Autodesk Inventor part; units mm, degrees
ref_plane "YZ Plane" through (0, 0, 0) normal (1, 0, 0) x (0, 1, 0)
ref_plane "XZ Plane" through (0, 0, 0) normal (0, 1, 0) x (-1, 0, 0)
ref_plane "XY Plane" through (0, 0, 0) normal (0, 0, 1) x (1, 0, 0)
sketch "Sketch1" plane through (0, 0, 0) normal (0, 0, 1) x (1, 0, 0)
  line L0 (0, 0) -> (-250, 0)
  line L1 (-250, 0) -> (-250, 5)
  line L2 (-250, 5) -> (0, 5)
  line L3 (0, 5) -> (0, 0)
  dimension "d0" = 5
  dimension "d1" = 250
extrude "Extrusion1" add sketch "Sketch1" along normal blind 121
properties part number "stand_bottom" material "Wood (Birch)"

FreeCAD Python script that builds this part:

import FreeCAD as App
import Part
import Sketcher

V = App.Vector
Q = App.Units.Quantity


def add_polygon(sketch, points):
    """Adds a closed chain of lines whose ends are joined by coincident constraints."""
    first, n = sketch.GeometryCount, len(points)
    for a, b in zip(points, points[1:] + points[:1]):
        sketch.addGeometry(Part.LineSegment(App.Vector(*a, 0), App.Vector(*b, 0)), False)
    for i in range(n):
        sketch.addConstraint(Sketcher.Constraint("Coincident", first + i, 2, first + (i + 1) % n, 1))

doc = App.newDocument("Part")
body = doc.addObject("PartDesign::Body", "Body")

# Sketch on XY plane
sketch1 = body.newObject("Sketcher::SketchObject", "Sketch")
sketch1.AttachmentSupport = (doc.getObject("XY_Plane"), [""])
sketch1.MapMode = "FlatFace"
add_polygon(sketch1, [(-250, 0), (0, 0), (0, 5), (-250, 5)])  # lines 0-3
sketch1.addConstraint(Sketcher.Constraint("Horizontal", 0))
sketch1.addConstraint(Sketcher.Constraint("Vertical", 1))
sketch1.addConstraint(Sketcher.Constraint("Horizontal", 2))
sketch1.addConstraint(Sketcher.Constraint("Vertical", 3))
sketch1.addConstraint(Sketcher.Constraint("Coincident", 0, 2, -1, 1))
sketch1.addConstraint(Sketcher.Constraint("DistanceX", 0, 1, 0, 2, Q("250 mm")))
sketch1.addConstraint(Sketcher.Constraint("DistanceY", 1, 1, 1, 2, Q("5 mm")))
pad1 = body.newObject("PartDesign::Pad", "Pad")
pad1.Profile = sketch1
pad1.Length = 121

doc.recompute()
